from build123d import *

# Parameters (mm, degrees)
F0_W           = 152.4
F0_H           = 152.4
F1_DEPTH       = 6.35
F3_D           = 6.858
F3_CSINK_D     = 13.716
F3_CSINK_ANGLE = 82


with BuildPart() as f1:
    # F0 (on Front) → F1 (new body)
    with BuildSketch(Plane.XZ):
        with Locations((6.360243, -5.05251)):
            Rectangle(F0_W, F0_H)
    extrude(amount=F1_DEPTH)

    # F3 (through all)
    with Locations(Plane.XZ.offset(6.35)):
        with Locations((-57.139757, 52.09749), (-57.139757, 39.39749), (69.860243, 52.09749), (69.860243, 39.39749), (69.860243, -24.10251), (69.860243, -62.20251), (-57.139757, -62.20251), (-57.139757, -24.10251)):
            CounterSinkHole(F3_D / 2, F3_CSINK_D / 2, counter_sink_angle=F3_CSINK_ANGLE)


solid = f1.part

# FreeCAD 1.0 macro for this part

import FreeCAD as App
import Part
import Sketcher
from FreeCAD import Vector
Q = App.Units.Quantity

doc = App.newDocument("Part")
params = doc.addObject("Spreadsheet::Sheet", "Params")
for row, (alias, value) in enumerate([
    ("sketch1_width", "6 in"),
    ("pad1_length", "0.25 in"),
    ("sketch2_diameter", "0.27 in"),
    ("hole_diameter", "0.27 in"),
    ("hole_csink_diameter", "0.54 in"),
], start=1):
    params.set(f"A{row}", alias)
    params.set(f"B{row}", "=" + value)
    params.setAlias(f"B{row}", alias)

body = doc.addObject("PartDesign::Body", "Body")

# Sketch on XZ plane
sketch1 = body.newObject("Sketcher::SketchObject", "Sketch")
sketch1.AttachmentSupport = (doc.getObject("XZ_Plane"), [""])
sketch1.MapMode = "FlatFace"
sketch1.addGeometry([
    Part.LineSegment(Vector(-69.839757, 71.14749, 0), Vector(-69.839757, -81.25251, 0)),
    Part.LineSegment(Vector(-69.839757, -81.25251, 0), Vector(82.560243, -81.25251, 0)),
    Part.LineSegment(Vector(82.560243, -81.25251, 0), Vector(82.560243, 71.14749, 0)),
    Part.LineSegment(Vector(82.560243, 71.14749, 0), Vector(-69.839757, 71.14749, 0)),
], False)
sketch1.addConstraint([
    Sketcher.Constraint("Coincident", 0, 2, 1, 1),
    Sketcher.Constraint("Coincident", 1, 2, 2, 1),
    Sketcher.Constraint("Coincident", 2, 2, 3, 1),
    Sketcher.Constraint("Coincident", 3, 2, 0, 1),
    Sketcher.Constraint("Vertical", 0),
    Sketcher.Constraint("Horizontal", 1),
    Sketcher.Constraint("Vertical", 2),
    Sketcher.Constraint("Horizontal", 3),
    Sketcher.Constraint("Equal", 3, 0),
    Sketcher.Constraint("DistanceX", 1, 1, 1, 2, Q("6 in")),
    Sketcher.Constraint("DistanceY", 0, 2, -1, 1, Q("81.25251 mm")),
    Sketcher.Constraint("DistanceX", 0, 2, -1, 1, Q("69.839757 mm")),
])
sketch1.setExpression("Constraints[9]", "Params.sketch1_width")
pad1 = body.newObject("PartDesign::Pad", "Pad")
pad1.Profile = sketch1
pad1.setExpression("Length", "Params.pad1_length")

# Sketch on XZ plane
sketch2 = body.newObject("Sketcher::SketchObject", "Sketch001")
sketch2.AttachmentSupport = (doc.getObject("XZ_Plane"), [""])
sketch2.MapMode = "FlatFace"
sketch2.AttachmentOffset = App.Placement(Vector(0, 0, 0.25 * 25.4), App.Rotation())
sketch2.addGeometry([
    Part.Circle(Vector(-57.139757, 52.09749, 0), Vector(0, 0, 1), 3.429),  # 0
    Part.Circle(Vector(-57.139757, 39.39749, 0), Vector(0, 0, 1), 3.429),  # 1
    Part.Circle(Vector(69.860243, 52.09749, 0), Vector(0, 0, 1), 3.429),  # 2
    Part.Circle(Vector(69.860243, 39.39749, 0), Vector(0, 0, 1), 3.429),  # 3
    Part.Circle(Vector(69.860243, -24.10251, 0), Vector(0, 0, 1), 3.429),  # 4
    Part.Circle(Vector(69.860243, -62.20251, 0), Vector(0, 0, 1), 3.429),  # 5
    Part.Circle(Vector(-57.139757, -62.20251, 0), Vector(0, 0, 1), 3.429),  # 6
    Part.Circle(Vector(-57.139757, -24.10251, 0), Vector(0, 0, 1), 3.429),  # 7
], False)
sketch2.addConstraint([
    Sketcher.Constraint("Equal", 0, 1),
    Sketcher.Constraint("Equal", 1, 2),
    Sketcher.Constraint("Equal", 2, 3),
    Sketcher.Constraint("Equal", 3, 4),
    Sketcher.Constraint("Equal", 4, 5),
    Sketcher.Constraint("Equal", 5, 6),
    Sketcher.Constraint("Equal", 6, 7),
    Sketcher.Constraint("Horizontal", 0, 3, 2, 3),
    Sketcher.Constraint("Horizontal", 1, 3, 3, 3),
    Sketcher.Constraint("Horizontal", 5, 3, 6, 3),
    Sketcher.Constraint("Horizontal", 4, 3, 7, 3),
    Sketcher.Constraint("Vertical", 0, 3, 1, 3),
    Sketcher.Constraint("Vertical", 2, 3, 3, 3),
    Sketcher.Constraint("Vertical", 3, 3, 4, 3),
    Sketcher.Constraint("Vertical", 4, 3, 5, 3),
    Sketcher.Constraint("Vertical", 1, 3, 6, 3),
    Sketcher.Constraint("Vertical", 6, 3, 7, 3),
    Sketcher.Constraint("Diameter", 0, Q("0.27 in")),
    Sketcher.Constraint("DistanceX", 0, 3, 2, 3, Q("5 in")),
    Sketcher.Constraint("DistanceY", 4, 3, 2, 3, Q("3 in")),
    Sketcher.Constraint("DistanceY", 5, 3, 3, 3, Q("4 in")),
    Sketcher.Constraint("DistanceY", 1, 3, 0, 3, Q("0.5 in")),
    Sketcher.Constraint("DistanceY", -1, 1, 0, 3, Q("52.09749 mm")),
    Sketcher.Constraint("DistanceX", 0, 3, -1, 1, Q("57.139757 mm")),
])
sketch2.setExpression("Constraints[17]", "Params.sketch2_diameter")
doc.recompute()
hole = body.newObject("PartDesign::Hole", "Hole")
hole.Profile = sketch2
hole.ThreadType = "None"
hole.setExpression("Diameter", "Params.hole_diameter")
hole.DepthType = "ThroughAll"
hole.HoleCutType = "Countersink"
hole.setExpression("HoleCutDiameter", "Params.hole_csink_diameter")
hole.HoleCutCountersinkAngle = 82

doc.recompute()
